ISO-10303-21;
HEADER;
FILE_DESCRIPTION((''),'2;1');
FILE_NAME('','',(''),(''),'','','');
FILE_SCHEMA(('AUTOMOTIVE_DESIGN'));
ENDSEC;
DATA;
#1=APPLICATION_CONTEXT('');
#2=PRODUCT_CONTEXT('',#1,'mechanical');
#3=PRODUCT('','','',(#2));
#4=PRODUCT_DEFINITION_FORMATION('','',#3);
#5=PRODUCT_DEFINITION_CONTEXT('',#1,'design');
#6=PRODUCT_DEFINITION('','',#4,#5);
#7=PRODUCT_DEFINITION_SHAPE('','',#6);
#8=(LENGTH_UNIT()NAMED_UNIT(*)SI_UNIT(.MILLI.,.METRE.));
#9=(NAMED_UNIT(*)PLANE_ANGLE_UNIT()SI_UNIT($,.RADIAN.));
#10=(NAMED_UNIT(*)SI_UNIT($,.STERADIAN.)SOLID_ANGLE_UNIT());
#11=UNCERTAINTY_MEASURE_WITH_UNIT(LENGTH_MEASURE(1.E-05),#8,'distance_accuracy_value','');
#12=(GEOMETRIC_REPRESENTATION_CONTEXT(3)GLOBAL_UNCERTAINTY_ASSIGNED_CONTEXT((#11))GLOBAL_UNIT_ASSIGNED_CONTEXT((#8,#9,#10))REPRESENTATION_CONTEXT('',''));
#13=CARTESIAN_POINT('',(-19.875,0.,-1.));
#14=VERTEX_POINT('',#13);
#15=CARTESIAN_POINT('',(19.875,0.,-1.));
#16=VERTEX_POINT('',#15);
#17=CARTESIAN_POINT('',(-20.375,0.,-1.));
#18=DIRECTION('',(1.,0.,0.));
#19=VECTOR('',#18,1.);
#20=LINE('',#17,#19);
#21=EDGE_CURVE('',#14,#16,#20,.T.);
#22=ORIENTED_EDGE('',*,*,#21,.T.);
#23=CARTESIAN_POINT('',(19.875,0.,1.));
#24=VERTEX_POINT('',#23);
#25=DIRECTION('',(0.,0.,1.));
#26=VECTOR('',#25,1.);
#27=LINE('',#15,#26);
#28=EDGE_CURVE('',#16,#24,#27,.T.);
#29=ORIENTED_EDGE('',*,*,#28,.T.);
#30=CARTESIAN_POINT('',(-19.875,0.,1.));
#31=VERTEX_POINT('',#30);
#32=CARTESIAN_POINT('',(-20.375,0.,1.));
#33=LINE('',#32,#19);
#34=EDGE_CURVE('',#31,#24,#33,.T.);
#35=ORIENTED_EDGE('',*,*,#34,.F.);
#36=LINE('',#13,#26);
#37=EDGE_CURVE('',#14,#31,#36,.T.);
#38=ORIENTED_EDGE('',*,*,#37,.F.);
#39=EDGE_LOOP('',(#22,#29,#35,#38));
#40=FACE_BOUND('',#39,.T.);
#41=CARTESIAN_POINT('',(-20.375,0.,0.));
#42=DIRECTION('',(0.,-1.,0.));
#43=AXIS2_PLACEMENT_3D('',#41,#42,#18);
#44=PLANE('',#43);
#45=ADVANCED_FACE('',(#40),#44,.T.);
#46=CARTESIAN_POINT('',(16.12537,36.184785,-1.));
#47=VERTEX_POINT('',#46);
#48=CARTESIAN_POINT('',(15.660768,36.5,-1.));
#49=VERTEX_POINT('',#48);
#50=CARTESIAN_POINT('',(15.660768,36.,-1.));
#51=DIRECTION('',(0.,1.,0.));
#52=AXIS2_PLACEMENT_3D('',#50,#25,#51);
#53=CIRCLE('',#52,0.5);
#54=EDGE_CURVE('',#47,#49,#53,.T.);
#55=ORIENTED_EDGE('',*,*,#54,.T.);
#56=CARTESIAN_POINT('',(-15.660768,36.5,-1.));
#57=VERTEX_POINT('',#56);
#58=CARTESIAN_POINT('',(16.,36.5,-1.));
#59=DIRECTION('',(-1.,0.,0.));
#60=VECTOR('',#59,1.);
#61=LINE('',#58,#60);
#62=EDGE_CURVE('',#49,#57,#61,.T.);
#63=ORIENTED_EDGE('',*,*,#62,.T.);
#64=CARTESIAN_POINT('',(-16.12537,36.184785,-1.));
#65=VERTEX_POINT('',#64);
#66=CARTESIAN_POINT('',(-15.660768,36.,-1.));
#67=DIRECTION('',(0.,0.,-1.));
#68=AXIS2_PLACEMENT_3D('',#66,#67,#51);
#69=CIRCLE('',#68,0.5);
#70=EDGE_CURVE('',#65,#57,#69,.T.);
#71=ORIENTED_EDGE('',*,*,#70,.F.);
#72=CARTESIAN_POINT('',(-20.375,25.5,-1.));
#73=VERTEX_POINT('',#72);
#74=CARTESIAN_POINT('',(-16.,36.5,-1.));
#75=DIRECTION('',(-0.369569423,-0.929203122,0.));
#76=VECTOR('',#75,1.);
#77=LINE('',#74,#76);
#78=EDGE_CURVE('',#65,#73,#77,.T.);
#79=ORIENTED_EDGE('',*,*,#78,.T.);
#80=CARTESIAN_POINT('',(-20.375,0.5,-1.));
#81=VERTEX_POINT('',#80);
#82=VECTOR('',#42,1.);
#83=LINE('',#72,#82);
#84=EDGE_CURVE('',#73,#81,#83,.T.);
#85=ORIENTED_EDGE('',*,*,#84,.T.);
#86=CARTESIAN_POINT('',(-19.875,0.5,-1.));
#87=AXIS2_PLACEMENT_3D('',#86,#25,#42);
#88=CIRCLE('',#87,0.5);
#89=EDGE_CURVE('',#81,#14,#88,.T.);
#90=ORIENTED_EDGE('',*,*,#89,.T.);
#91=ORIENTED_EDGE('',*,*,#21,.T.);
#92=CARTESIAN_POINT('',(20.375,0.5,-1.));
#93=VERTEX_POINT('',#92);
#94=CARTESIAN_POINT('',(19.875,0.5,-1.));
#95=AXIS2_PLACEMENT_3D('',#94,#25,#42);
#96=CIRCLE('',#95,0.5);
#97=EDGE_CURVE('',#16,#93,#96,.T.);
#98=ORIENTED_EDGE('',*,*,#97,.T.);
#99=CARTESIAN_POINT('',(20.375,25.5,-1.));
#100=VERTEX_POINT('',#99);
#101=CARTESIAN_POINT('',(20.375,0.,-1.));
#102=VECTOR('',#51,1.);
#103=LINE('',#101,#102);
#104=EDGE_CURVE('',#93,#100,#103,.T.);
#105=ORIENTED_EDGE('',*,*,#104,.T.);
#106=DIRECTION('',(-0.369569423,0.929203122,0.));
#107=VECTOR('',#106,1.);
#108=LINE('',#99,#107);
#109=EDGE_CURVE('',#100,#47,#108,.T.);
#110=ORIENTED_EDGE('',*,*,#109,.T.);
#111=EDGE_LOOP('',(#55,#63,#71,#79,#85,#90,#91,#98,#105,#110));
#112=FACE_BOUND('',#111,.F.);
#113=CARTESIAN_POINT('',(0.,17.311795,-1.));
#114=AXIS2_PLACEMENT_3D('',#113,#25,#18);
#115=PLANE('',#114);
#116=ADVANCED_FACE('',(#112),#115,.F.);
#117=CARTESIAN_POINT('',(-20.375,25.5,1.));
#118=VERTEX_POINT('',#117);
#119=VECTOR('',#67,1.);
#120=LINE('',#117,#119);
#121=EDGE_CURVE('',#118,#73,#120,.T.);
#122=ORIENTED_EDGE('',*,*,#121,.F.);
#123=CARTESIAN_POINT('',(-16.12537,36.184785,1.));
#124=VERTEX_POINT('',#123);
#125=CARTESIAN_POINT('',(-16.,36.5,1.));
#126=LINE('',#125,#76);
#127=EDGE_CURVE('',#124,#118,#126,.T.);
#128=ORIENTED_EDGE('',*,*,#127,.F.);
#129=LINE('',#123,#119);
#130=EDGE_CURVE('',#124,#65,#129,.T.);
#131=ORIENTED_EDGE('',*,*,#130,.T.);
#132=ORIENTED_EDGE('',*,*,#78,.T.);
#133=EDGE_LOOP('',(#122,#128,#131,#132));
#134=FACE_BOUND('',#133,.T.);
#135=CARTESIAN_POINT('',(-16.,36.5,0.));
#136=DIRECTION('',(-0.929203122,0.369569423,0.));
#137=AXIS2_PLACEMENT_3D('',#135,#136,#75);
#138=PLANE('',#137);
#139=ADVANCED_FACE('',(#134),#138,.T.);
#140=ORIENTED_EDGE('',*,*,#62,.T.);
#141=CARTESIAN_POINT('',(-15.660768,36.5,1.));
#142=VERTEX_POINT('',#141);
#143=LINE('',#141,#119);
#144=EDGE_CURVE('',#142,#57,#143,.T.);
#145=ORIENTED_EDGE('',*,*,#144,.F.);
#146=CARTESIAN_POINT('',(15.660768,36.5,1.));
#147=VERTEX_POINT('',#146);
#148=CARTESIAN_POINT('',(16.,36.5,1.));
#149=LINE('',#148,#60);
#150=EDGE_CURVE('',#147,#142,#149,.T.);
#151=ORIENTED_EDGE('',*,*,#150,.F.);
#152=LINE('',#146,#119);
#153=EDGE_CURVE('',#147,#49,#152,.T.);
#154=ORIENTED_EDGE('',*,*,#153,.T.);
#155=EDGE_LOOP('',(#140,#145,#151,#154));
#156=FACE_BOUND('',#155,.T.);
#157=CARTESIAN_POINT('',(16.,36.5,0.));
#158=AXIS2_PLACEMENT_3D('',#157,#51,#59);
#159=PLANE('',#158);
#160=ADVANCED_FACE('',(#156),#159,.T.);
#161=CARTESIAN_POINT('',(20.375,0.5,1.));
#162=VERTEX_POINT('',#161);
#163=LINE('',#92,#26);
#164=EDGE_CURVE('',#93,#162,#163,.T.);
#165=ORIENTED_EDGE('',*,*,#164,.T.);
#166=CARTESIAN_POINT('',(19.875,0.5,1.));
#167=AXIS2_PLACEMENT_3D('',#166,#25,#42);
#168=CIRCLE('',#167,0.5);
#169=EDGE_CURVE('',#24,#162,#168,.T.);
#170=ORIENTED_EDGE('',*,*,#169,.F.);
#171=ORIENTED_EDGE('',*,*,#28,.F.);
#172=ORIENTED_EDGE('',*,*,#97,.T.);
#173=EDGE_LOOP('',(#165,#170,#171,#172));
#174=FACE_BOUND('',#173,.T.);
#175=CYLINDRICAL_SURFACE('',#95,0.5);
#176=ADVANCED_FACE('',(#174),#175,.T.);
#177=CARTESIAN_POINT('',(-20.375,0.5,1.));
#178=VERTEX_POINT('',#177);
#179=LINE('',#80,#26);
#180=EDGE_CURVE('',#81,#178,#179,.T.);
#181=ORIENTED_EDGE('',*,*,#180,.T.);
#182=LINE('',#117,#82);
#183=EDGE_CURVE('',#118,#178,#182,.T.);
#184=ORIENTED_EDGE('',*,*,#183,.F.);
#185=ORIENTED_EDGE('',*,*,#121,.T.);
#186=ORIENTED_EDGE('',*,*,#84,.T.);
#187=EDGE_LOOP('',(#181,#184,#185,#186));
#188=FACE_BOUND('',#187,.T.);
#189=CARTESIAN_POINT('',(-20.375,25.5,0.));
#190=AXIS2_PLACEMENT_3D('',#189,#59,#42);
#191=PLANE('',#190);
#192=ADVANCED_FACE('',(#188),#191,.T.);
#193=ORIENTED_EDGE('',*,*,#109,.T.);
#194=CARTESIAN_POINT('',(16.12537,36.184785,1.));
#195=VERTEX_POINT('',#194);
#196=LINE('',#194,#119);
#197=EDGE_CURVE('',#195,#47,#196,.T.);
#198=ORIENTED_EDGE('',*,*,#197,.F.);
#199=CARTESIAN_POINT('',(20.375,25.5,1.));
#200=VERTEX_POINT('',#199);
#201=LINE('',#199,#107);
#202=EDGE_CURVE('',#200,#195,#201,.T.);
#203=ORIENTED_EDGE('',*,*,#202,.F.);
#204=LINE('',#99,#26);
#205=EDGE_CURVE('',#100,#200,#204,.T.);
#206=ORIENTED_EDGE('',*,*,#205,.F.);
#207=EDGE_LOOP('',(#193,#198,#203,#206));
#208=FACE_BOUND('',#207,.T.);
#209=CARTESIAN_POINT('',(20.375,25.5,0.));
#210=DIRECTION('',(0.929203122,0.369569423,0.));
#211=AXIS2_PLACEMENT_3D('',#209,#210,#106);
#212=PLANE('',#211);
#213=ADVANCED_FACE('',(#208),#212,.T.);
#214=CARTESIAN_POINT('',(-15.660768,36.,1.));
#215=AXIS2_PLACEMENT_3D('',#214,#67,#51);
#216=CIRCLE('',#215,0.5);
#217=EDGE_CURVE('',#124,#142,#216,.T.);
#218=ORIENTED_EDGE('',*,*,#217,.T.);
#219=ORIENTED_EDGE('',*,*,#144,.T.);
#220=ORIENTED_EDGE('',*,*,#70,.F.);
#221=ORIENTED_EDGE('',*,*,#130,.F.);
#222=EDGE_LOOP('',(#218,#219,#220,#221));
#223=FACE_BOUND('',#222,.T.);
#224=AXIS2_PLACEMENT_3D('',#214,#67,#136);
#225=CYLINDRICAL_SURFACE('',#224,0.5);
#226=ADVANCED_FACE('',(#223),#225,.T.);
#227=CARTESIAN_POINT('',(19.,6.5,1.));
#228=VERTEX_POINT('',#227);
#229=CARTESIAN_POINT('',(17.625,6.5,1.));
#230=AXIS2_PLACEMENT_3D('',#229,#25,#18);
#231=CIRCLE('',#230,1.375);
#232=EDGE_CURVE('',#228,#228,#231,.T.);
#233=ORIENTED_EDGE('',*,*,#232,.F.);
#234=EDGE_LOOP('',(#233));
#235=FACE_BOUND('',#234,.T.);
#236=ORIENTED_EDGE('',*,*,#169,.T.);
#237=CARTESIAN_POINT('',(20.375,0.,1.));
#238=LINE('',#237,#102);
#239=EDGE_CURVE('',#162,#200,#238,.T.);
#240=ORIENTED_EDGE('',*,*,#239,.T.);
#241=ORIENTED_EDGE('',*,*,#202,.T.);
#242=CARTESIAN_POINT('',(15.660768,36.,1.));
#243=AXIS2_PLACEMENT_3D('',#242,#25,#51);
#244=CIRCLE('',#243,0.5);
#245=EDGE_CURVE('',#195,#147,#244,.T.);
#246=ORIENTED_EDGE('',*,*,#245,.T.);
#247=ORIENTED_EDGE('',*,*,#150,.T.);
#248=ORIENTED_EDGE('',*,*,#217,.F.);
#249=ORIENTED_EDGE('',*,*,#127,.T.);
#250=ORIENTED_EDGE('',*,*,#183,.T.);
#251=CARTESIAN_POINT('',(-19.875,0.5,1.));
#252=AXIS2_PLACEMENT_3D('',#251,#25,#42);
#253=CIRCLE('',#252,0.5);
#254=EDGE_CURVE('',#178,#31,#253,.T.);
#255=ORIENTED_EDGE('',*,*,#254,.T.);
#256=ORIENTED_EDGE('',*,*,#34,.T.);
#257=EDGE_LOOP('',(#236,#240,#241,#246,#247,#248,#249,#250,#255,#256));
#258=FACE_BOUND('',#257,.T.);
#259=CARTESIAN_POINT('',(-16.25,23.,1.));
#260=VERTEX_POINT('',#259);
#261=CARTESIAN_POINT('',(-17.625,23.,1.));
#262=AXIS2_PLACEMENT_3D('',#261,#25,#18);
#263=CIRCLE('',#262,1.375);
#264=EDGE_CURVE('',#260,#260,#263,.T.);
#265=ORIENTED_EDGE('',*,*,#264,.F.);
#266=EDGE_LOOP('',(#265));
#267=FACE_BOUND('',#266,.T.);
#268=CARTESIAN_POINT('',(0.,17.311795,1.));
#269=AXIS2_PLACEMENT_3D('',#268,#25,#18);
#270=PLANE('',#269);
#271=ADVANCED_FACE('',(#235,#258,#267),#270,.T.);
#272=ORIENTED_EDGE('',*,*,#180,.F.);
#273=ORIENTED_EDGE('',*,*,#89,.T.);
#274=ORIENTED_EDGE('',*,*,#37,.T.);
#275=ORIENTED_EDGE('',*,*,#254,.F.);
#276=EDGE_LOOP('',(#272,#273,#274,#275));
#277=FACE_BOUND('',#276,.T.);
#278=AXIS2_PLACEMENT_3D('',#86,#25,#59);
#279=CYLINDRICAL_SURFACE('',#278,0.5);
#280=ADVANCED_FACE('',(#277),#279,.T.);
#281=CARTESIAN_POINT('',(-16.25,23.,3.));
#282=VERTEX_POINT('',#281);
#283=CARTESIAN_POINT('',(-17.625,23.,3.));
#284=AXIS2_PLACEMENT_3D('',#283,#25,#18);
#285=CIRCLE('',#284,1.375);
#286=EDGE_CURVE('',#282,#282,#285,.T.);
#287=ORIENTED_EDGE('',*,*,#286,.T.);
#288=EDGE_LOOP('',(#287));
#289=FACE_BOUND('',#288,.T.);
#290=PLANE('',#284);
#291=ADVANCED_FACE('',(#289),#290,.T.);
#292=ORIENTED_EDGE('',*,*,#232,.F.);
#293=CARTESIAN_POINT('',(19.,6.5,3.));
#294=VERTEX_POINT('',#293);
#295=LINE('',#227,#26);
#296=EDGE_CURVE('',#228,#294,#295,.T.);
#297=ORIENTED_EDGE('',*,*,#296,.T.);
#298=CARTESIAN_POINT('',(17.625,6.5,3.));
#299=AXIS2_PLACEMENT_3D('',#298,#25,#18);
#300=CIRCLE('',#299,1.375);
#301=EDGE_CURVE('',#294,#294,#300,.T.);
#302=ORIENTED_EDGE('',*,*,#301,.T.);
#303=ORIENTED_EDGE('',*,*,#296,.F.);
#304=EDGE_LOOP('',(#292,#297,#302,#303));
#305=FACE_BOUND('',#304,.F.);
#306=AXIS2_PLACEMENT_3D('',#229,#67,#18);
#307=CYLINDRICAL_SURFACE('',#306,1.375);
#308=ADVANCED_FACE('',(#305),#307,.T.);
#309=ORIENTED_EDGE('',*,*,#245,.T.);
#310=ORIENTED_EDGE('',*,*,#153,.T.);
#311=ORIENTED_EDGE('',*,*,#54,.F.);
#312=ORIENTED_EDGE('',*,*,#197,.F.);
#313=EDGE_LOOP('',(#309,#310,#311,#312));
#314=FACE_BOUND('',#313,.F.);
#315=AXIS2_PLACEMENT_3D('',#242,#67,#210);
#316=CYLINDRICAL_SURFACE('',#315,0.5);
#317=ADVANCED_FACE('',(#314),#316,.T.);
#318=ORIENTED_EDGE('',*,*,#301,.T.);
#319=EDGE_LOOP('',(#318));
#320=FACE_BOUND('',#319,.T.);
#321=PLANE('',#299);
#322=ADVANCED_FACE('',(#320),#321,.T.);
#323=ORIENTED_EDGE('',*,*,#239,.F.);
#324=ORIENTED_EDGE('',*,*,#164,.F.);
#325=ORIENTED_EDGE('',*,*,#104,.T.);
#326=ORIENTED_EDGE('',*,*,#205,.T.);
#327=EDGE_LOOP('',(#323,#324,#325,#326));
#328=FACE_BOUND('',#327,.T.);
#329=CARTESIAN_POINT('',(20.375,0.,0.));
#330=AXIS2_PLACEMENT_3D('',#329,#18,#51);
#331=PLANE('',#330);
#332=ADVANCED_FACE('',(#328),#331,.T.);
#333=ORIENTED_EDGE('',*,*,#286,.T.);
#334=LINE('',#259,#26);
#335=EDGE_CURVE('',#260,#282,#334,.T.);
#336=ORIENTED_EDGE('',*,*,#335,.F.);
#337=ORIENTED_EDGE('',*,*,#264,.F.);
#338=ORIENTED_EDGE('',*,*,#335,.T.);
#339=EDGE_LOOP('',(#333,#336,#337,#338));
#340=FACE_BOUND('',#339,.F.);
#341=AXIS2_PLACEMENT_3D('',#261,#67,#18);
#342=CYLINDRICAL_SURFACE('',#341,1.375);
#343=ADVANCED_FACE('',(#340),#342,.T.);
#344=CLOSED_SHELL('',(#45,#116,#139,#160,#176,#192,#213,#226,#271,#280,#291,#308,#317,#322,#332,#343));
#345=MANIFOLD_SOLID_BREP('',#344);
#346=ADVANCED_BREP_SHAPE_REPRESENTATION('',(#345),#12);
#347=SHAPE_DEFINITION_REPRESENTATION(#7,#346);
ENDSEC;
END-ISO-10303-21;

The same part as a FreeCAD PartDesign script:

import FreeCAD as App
import Part
import Sketcher
Q = App.Units.Quantity


def edges_at(feature, points):
    """Names of the edges that pass closest to the given points."""
    edges = feature.Shape.Edges
    near = lambda p: min(range(len(edges)), key=lambda i: edges[i].distToShape(Part.Vertex(*p))[0])
    return sorted({f"Edge{near(p) + 1}" for p in points})

doc = App.newDocument("Part")
params = doc.addObject("Spreadsheet::Sheet", "Params")
for row, (alias, value) in enumerate([
    ("sketch1_width", "32 mm"),
    ("sketch1_height", "25.5 mm"),
    ("sketch1_width2", "40.75 mm"),
    ("pad1_length", "2 mm"),
    ("sketch2_diameter", "2.75 mm"),
    ("pad2_length", "2 mm"),
    ("fillet_radius", "0.5 mm"),
], start=1):
    params.set(f"A{row}", alias)
    params.set(f"B{row}", "=" + value)
    params.setAlias(f"B{row}", alias)

body = doc.addObject("PartDesign::Body", "Body")

# Sketch on XY plane
sketch1 = body.newObject("Sketcher::SketchObject", "Sketch")
sketch1.AttachmentSupport = (doc.getObject("XY_Plane"), [""])
sketch1.MapMode = "FlatFace"
sketch1.addGeometry(Part.LineSegment(App.Vector(-20, 26, 0), App.Vector(-20, 0, 0)), False)
sketch1.addGeometry(Part.LineSegment(App.Vector(-20, 0, 0), App.Vector(20, 0, 0)), False)
sketch1.addGeometry(Part.LineSegment(App.Vector(20, 0, 0), App.Vector(20, 26, 0)), False)
sketch1.addGeometry(Part.LineSegment(App.Vector(20, 26, 0), App.Vector(16, 36, 0)), False)
sketch1.addGeometry(Part.LineSegment(App.Vector(16, 36, 0), App.Vector(-16, 36, 0)), False)
sketch1.addGeometry(Part.LineSegment(App.Vector(-16, 36, 0), App.Vector(-20, 26, 0)), False)
sketch1.addConstraint(Sketcher.Constraint("Coincident", 0, 2, 1, 1))
sketch1.addConstraint(Sketcher.Constraint("Coincident", 1, 2, 2, 1))
sketch1.addConstraint(Sketcher.Constraint("Coincident", 2, 2, 3, 1))
sketch1.addConstraint(Sketcher.Constraint("Coincident", 3, 2, 4, 1))
sketch1.addConstraint(Sketcher.Constraint("Coincident", 4, 2, 5, 1))
sketch1.addConstraint(Sketcher.Constraint("Coincident", 5, 2, 0, 1))
sketch1.addConstraint(Sketcher.Constraint("Vertical", 0))
sketch1.addConstraint(Sketcher.Constraint("Horizontal", 1))
sketch1.addConstraint(Sketcher.Constraint("Vertical", 2))
sketch1.addConstraint(Sketcher.Constraint("Horizontal", 4))
sketch1.addConstraint(Sketcher.Constraint("Symmetric", 0, 2, 1, 2, -1, 1))
sketch1.addConstraint(Sketcher.Constraint("Horizontal", 2, 2, 5, 2))
sketch1.addConstraint(Sketcher.Constraint("Equal", 3, 5))
sketch1.addConstraint(Sketcher.Constraint("DistanceX", 4, 2, 4, 1, Q("32 mm")))
sketch1.addConstraint(Sketcher.Constraint("DistanceY", 0, 2, 0, 1, Q("25.5 mm")))
sketch1.addConstraint(Sketcher.Constraint("DistanceY", 2, 2, 3, 2, Q("11 mm")))
sketch1.addConstraint(Sketcher.Constraint("DistanceX", 1, 1, 1, 2, Q("40.75 mm")))
sketch1.setExpression("Constraints[13]", "Params.sketch1_width")
sketch1.setExpression("Constraints[14]", "Params.sketch1_height")
sketch1.setExpression("Constraints[16]", "Params.sketch1_width2")
pad1 = body.newObject("PartDesign::Pad", "Pad")
pad1.Profile = sketch1
pad1.setExpression("Length", "Params.pad1_length")
pad1.Midplane = True

# Sketch on XY plane
sketch2 = body.newObject("Sketcher::SketchObject", "Sketch001")
sketch2.AttachmentSupport = (doc.getObject("XY_Plane"), [""])
sketch2.MapMode = "FlatFace"
sketch2.AttachmentOffset = App.Placement(App.Vector(0, 0, 1), App.Rotation())
sketch2.addGeometry(Part.Circle(App.Vector(17.6, 6.5, 0), App.Vector(0, 0, 1), 1.4), False)
sketch2.addGeometry(Part.Circle(App.Vector(-17.6, 23, 0), App.Vector(0, 0, 1), 1.4), False)
sketch2.addConstraint(Sketcher.Constraint("Equal", 0, 1))
sketch2.addConstraint(Sketcher.Constraint("Diameter", 0, Q("2.75 mm")))
sketch2.addConstraint(Sketcher.Constraint("DistanceY", -1, 1, 1, 3, Q("23 mm")))
sketch2.addConstraint(Sketcher.Constraint("DistanceY", -1, 1, 0, 3, Q("6.5 mm")))
sketch2.addConstraint(Sketcher.Constraint("DistanceX", 1, 3, 0, 3, Q("35.25 mm")))
sketch2.addConstraint(Sketcher.Constraint("DistanceX", -1, 1, 0, 3, Q("17.625 mm")))
sketch2.setExpression("Constraints[1]", "Params.sketch2_diameter")
pad2 = body.newObject("PartDesign::Pad", "Pad001")
pad2.Profile = sketch2
pad2.setExpression("Length", "Params.pad2_length")
doc.recompute()

fillet = body.newObject("PartDesign::Fillet", "Fillet")
fillet.Base = (pad2, edges_at(pad2, [
    (20.375, 0, 0),
    (-20.375, 0, 0),
    (-16, 36.5, 0),
    (16, 36.5, 0),
]))
fillet.setExpression("Radius", "Params.fillet_radius")

doc.recompute()
